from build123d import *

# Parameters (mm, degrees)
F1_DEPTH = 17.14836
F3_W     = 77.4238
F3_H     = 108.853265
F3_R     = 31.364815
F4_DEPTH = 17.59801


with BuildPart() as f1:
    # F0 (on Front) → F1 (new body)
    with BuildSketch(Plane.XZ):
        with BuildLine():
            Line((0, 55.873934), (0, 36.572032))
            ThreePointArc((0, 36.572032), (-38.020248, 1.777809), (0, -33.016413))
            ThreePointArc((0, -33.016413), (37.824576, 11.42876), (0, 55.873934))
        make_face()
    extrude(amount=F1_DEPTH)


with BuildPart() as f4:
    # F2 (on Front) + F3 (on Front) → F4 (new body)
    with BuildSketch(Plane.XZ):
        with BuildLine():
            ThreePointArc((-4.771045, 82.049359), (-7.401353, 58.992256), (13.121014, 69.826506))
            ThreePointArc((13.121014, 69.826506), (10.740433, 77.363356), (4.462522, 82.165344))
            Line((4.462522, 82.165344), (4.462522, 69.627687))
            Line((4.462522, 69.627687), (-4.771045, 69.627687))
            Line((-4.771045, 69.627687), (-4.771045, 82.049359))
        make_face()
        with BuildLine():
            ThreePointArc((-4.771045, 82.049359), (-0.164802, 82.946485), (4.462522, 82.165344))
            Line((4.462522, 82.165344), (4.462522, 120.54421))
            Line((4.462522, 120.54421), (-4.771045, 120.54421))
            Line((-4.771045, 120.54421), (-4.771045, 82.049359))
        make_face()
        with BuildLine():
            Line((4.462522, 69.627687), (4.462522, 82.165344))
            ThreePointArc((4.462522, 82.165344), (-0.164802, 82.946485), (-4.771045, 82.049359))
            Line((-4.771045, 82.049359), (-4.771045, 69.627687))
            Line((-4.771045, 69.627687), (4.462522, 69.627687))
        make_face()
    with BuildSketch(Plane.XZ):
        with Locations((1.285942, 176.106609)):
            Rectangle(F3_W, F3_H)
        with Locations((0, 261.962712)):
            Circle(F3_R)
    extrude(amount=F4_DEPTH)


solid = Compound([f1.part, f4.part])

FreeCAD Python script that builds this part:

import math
import FreeCAD as App
import Part
import Sketcher
from FreeCAD import Vector

doc = App.newDocument("Part")
body = doc.addObject("PartDesign::Body", "Body")

# Sketch on XZ plane
sketch1 = body.newObject("Sketcher::SketchObject", "Sketch")
sketch1.AttachmentSupport = (doc.getObject("XZ_Plane"), [""])
sketch1.MapMode = "FlatFace"
sketch1.addGeometry([
    Part.LineSegment(Vector(0, 56, 0), Vector(0, 37, 0)),
    Part.ArcOfCircle(Part.Circle(Vector(-3, 2, 0), Vector(0, 0, 1), 35), math.radians(85), math.radians(275)),
    Part.ArcOfCircle(Part.Circle(Vector(-7, 11, 0), Vector(0, 0, 1), 45), math.radians(-81), math.radians(81)),
], False)
sketch1.addConstraint([
    Sketcher.Constraint("Coincident", 0, 2, 1, 1),
    Sketcher.Constraint("Coincident", 1, 2, 2, 1),
    Sketcher.Constraint("Coincident", 2, 2, 0, 1),
    Sketcher.Constraint("Vertical", 0),
    Sketcher.Constraint("PointOnObject", 0, 2, -2),
    Sketcher.Constraint("PointOnObject", 1, 2, -2),
    Sketcher.Constraint("Radius", 2, 45.024589),
    Sketcher.Constraint("DistanceY", 0, 2, 0, 1, 19.301902),
    Sketcher.Constraint("Radius", 1, 34.931087),
    Sketcher.Constraint("DistanceX", 1, 3, -1, 1, 3.089161),
    Sketcher.Constraint("DistanceY", -1, 1, 1, 3, 1.77781),
])
pad1 = body.newObject("PartDesign::Pad", "Pad")
pad1.Profile = sketch1
pad1.Length = 17.14836
body2 = doc.addObject("PartDesign::Body", "Body001")
body2.AllowCompound = True

# Sketch on XZ plane
sketch2 = body2.newObject("Sketcher::SketchObject", "Sketch001")
sketch2.AttachmentSupport = (doc.getObject("XZ_Plane001"), [""])
sketch2.MapMode = "FlatFace"
sketch2.addGeometry([
    Part.ArcOfCircle(Part.Circle(Vector(0, 70, 0), Vector(0, 0, 1), 13), math.radians(111), math.radians(360)),  # 0
    Part.ArcOfCircle(Part.Circle(Vector(0, 70, 0), Vector(0, 0, 1), 13), math.radians(0), math.radians(70)),  # 1
    Part.LineSegment(Vector(4, 82, 0), Vector(4, 121, 0)),  # 2
    Part.LineSegment(Vector(4, 121, 0), Vector(-5, 121, 0)),  # 3
    Part.LineSegment(Vector(-5, 121, 0), Vector(-5, 82, 0)),  # 4
    Part.LineSegment(Vector(-37, 231, 0), Vector(-37, 122, 0)),  # 5
    Part.LineSegment(Vector(-37, 122, 0), Vector(40, 122, 0)),  # 6
    Part.LineSegment(Vector(40, 122, 0), Vector(40, 231, 0)),  # 7
    Part.LineSegment(Vector(40, 231, 0), Vector(-37, 231, 0)),  # 8
    Part.Circle(Vector(0, 262, 0), Vector(0, 0, 1), 31),  # 9
], False)
sketch2.addConstraint([
    Sketcher.Constraint("Tangent", 0, 2, 1, 1),
    Sketcher.Constraint("Coincident", 1, 2, 2, 1),
    Sketcher.Constraint("Coincident", 2, 2, 3, 1),
    Sketcher.Constraint("Coincident", 3, 2, 4, 1),
    Sketcher.Constraint("Coincident", 4, 2, 0, 1),
    Sketcher.Constraint("Coincident", 5, 2, 6, 1),
    Sketcher.Constraint("Coincident", 6, 2, 7, 1),
    Sketcher.Constraint("Coincident", 7, 2, 8, 1),
    Sketcher.Constraint("Coincident", 8, 2, 5, 1),
    Sketcher.Constraint("Vertical", 2),
    Sketcher.Constraint("Horizontal", 3),
    Sketcher.Constraint("Vertical", 4),
    Sketcher.Constraint("Vertical", 5),
    Sketcher.Constraint("Horizontal", 6),
    Sketcher.Constraint("Vertical", 7),
    Sketcher.Constraint("Horizontal", 8),
    Sketcher.Constraint("Equal", 0, 1),
    Sketcher.Constraint("PointOnObject", 0, 3, -2),
    Sketcher.Constraint("PointOnObject", 9, 3, -2),
    Sketcher.Constraint("Horizontal", 1, 3, 0, 2),
    Sketcher.Constraint("Diameter", 9, 62.72963),
    Sketcher.Constraint("DistanceX", 6, 1, 6, 2, 77.4238),
    Sketcher.Constraint("Radius", 0, 13.121014),
    Sketcher.Constraint("DistanceY", 4, 2, 4, 1, 38.494851),
    Sketcher.Constraint("DistanceY", 2, 2, 9, 3, 141.418502),
    Sketcher.Constraint("DistanceX", 3, 2, 3, 1, 9.233567),
    Sketcher.Constraint("DistanceY", 2, 1, 2, 2, 38.378866),
    Sketcher.Constraint("DistanceY", 5, 2, 5, 1, 108.853265),
    Sketcher.Constraint("DistanceY", -1, 1, 9, 3, 261.962712),
    Sketcher.Constraint("DistanceY", -1, 1, 7, 2, 230.533242),
    Sketcher.Constraint("DistanceX", 5, 2, 2, 2, 41.88848),
])
pad2 = body2.newObject("PartDesign::Pad", "Pad001")
pad2.Profile = sketch2
pad2.Length = 17.59801

doc.recompute()
